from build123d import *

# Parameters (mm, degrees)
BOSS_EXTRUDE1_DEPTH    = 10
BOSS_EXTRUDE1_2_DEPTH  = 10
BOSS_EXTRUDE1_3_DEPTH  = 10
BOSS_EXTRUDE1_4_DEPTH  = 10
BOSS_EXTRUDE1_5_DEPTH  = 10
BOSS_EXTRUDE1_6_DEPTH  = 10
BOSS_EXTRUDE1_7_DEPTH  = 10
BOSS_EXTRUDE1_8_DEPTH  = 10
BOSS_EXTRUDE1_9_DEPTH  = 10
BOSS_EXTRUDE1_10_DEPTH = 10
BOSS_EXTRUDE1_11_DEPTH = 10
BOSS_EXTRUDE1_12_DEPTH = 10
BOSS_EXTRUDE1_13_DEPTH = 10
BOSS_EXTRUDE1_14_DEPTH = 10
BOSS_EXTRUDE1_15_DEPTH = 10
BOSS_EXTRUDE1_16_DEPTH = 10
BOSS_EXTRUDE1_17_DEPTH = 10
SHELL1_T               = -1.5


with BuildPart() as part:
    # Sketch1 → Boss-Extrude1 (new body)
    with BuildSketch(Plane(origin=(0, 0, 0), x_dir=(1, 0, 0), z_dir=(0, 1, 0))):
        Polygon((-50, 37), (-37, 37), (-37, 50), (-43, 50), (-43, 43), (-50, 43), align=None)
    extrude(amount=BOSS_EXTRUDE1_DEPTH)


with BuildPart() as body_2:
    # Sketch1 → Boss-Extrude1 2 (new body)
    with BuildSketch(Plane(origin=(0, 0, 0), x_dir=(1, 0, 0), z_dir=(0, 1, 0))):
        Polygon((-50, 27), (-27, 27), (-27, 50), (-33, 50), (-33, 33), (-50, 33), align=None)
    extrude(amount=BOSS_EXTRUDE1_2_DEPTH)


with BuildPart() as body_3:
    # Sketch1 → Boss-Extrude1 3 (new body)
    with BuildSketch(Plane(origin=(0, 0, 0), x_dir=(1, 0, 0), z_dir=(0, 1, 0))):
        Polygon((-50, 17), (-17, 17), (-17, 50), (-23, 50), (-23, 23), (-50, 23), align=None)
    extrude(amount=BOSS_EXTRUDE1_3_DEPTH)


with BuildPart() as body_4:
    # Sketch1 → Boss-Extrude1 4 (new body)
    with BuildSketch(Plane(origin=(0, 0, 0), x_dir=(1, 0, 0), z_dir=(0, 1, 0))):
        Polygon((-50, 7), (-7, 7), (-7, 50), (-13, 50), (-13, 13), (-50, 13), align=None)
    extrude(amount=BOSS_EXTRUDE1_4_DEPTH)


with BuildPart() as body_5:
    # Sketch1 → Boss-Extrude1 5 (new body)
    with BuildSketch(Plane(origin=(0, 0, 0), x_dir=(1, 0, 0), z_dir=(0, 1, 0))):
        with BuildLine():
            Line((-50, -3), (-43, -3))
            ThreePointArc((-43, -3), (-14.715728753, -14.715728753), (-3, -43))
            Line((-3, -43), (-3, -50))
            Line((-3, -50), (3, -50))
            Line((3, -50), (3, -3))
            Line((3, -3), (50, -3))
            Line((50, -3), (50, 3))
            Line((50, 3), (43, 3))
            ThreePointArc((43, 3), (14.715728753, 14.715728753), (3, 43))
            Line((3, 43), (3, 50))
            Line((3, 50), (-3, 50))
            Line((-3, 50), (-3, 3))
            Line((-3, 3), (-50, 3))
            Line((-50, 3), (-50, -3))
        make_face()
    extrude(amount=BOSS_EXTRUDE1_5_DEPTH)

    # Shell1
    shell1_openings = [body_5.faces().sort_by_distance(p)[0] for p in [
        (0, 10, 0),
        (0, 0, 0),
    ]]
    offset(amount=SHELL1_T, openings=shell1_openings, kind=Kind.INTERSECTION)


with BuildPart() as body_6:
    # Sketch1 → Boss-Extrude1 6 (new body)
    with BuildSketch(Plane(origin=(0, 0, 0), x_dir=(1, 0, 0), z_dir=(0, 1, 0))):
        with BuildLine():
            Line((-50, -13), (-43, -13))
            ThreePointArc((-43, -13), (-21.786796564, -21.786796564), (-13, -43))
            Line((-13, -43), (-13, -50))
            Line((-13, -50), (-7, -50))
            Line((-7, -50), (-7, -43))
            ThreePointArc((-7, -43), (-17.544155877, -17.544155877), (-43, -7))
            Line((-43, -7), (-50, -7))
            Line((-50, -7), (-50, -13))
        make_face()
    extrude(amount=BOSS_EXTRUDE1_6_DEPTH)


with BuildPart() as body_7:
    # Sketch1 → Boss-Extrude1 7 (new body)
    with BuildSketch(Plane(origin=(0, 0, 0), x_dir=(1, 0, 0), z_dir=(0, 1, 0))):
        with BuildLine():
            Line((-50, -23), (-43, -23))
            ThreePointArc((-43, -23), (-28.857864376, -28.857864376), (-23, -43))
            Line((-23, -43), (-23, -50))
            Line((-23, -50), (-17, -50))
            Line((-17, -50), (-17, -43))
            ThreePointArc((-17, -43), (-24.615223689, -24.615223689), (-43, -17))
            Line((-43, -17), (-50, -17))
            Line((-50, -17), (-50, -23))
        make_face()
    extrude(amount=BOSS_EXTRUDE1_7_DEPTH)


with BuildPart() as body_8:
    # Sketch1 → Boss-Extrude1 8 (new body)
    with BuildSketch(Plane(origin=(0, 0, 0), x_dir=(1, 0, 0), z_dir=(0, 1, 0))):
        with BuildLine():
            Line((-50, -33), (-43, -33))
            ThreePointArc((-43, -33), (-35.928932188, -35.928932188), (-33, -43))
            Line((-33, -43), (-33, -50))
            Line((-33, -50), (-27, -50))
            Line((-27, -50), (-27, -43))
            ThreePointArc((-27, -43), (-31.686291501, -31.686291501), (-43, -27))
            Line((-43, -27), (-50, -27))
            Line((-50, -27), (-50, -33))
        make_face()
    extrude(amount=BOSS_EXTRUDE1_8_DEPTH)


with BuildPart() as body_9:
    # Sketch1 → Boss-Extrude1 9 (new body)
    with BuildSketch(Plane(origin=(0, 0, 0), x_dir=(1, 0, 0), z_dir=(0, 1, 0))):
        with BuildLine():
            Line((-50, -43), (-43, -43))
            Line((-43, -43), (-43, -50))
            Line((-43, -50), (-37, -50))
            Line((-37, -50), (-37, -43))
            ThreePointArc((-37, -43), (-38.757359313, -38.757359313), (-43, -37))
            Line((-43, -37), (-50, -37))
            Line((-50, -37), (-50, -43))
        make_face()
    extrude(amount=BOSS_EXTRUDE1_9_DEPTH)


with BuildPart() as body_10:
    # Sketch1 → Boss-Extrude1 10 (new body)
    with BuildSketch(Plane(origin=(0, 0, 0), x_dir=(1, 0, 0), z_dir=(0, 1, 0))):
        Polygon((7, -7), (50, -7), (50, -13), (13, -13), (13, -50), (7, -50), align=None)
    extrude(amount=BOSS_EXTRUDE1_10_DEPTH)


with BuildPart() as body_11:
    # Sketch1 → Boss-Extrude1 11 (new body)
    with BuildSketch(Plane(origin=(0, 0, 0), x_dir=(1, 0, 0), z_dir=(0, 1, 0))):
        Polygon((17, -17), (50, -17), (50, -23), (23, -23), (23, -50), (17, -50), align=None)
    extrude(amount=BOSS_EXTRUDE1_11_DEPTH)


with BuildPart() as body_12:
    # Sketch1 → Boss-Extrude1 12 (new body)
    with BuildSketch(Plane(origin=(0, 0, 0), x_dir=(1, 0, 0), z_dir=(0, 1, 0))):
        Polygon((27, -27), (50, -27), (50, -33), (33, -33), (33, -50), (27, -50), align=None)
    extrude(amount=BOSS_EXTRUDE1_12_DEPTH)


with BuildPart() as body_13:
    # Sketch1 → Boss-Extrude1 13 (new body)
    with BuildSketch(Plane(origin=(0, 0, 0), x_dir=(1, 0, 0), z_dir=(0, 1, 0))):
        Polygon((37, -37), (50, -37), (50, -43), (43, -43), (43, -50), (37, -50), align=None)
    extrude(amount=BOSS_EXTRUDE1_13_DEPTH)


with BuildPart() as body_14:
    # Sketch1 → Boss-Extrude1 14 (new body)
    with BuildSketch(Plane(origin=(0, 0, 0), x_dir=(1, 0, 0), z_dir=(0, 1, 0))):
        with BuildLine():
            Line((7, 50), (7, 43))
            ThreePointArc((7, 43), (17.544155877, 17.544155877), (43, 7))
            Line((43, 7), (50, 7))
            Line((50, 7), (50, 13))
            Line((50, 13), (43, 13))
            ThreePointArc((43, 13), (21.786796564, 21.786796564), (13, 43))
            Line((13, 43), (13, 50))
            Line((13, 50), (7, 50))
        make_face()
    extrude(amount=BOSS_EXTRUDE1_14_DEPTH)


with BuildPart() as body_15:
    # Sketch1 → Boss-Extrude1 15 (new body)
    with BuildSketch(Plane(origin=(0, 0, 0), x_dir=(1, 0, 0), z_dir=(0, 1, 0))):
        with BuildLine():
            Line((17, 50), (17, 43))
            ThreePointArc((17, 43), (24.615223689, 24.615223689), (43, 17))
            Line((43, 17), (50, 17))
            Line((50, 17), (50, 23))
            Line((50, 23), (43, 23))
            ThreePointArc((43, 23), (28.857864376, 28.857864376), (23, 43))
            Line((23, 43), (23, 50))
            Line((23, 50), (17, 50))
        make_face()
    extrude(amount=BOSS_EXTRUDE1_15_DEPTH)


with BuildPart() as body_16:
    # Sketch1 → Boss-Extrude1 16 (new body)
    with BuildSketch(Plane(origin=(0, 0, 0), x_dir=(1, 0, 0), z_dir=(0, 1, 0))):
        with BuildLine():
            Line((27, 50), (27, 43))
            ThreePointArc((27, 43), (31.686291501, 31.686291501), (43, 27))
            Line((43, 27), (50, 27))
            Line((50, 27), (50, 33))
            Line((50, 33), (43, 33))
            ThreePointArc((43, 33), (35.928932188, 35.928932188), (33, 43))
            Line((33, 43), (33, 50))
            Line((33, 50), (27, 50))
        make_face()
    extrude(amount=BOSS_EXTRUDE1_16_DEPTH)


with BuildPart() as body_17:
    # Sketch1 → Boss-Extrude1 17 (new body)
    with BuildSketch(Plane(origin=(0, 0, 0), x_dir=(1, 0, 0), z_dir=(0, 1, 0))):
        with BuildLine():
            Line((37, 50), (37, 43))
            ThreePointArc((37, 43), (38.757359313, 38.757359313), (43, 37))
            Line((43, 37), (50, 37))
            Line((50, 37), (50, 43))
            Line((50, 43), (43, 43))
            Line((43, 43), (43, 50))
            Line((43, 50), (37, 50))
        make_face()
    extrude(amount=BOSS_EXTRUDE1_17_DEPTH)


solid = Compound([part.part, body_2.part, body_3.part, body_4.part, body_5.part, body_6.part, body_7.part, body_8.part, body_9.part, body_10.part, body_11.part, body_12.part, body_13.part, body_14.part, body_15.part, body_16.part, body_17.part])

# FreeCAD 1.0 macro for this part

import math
import FreeCAD as App
import Part
import Sketcher
from FreeCAD import Vector
Q = App.Units.Quantity


def faces_at(feature, points):
    """Names of the faces that lie closest to the given points."""
    faces = feature.Shape.Faces
    near = lambda p: min(range(len(faces)), key=lambda i: faces[i].distToShape(Part.Vertex(*p))[0])
    return sorted({f"Face{near(p) + 1}" for p in points})


def add_polygon(sketch, points):
    """Adds a closed chain of lines whose ends are joined by coincident constraints."""
    first, n = sketch.GeometryCount, len(points)
    for a, b in zip(points, points[1:] + points[:1]):
        sketch.addGeometry(Part.LineSegment(App.Vector(*a, 0), App.Vector(*b, 0)), False)
    for i in range(n):
        sketch.addConstraint(Sketcher.Constraint("Coincident", first + i, 2, first + (i + 1) % n, 1))

doc = App.newDocument("Part")
body = doc.addObject("PartDesign::Body", "Body")

# Sketch on XZ plane
sketch1 = doc.addObject("Sketcher::SketchObject", "Sketch")
body.addObject(sketch1)
sketch1.AttachmentSupport = (doc.XZ_Plane, [""])
sketch1.MapMode = "FlatFace"
add_polygon(sketch1, [(-50, -37), (-37, -37), (-37, -50), (-43, -50), (-43, -43), (-50, -43)])  # lines 0-5
sketch1.addConstraint([
    Sketcher.Constraint("Horizontal", 0),
    Sketcher.Constraint("Vertical", 1),
    Sketcher.Constraint("Horizontal", 2),
    Sketcher.Constraint("Vertical", 3),
    Sketcher.Constraint("Horizontal", 4),
    Sketcher.Constraint("Vertical", 5),
    Sketcher.Constraint("Equal", 0, 1),
    Sketcher.Constraint("Equal", 4, 3),
    Sketcher.Constraint("DistanceX", 0, 1, 0, 2, Q("13 mm")),
    Sketcher.Constraint("DistanceX", 2, 2, 2, 1, Q("6 mm")),
    Sketcher.Constraint("DistanceX", 0, 2, -1, 1, Q("37 mm")),
    Sketcher.Constraint("DistanceY", 0, 2, -1, 1, Q("37 mm")),
])
pad1 = doc.addObject("PartDesign::Pad", "Pad")
body.addObject(pad1)
pad1.Profile = sketch1
pad1.Length = 10
pad1.Reversed = True
body2 = doc.addObject("PartDesign::Body", "Body001")

# Sketch on XZ plane
sketch2 = doc.addObject("Sketcher::SketchObject", "Sketch001")
body2.addObject(sketch2)
sketch2.AttachmentSupport = (doc.getObject("XZ_Plane001"), [""])
sketch2.MapMode = "FlatFace"
add_polygon(sketch2, [(-50, -27), (-27, -27), (-27, -50), (-33, -50), (-33, -33), (-50, -33)])  # lines 0-5
sketch2.addConstraint([
    Sketcher.Constraint("Horizontal", 0),
    Sketcher.Constraint("Vertical", 1),
    Sketcher.Constraint("Horizontal", 2),
    Sketcher.Constraint("Vertical", 3),
    Sketcher.Constraint("Horizontal", 4),
    Sketcher.Constraint("Vertical", 5),
    Sketcher.Constraint("Equal", 0, 1),
    Sketcher.Constraint("Equal", 4, 3),
    Sketcher.Constraint("DistanceX", 0, 1, 0, 2, Q("23 mm")),
    Sketcher.Constraint("DistanceX", 2, 2, 2, 1, Q("6 mm")),
    Sketcher.Constraint("DistanceX", 0, 2, -1, 1, Q("27 mm")),
    Sketcher.Constraint("DistanceY", 0, 2, -1, 1, Q("27 mm")),
])
pad2 = doc.addObject("PartDesign::Pad", "Pad001")
body2.addObject(pad2)
pad2.Profile = sketch2
pad2.Length = 10
pad2.Reversed = True
body3 = doc.addObject("PartDesign::Body", "Body002")

# Sketch on XZ plane
sketch3 = doc.addObject("Sketcher::SketchObject", "Sketch002")
body3.addObject(sketch3)
sketch3.AttachmentSupport = (doc.getObject("XZ_Plane002"), [""])
sketch3.MapMode = "FlatFace"
add_polygon(sketch3, [(-50, -17), (-17, -17), (-17, -50), (-23, -50), (-23, -23), (-50, -23)])  # lines 0-5
sketch3.addConstraint([
    Sketcher.Constraint("Horizontal", 0),
    Sketcher.Constraint("Vertical", 1),
    Sketcher.Constraint("Horizontal", 2),
    Sketcher.Constraint("Vertical", 3),
    Sketcher.Constraint("Horizontal", 4),
    Sketcher.Constraint("Vertical", 5),
    Sketcher.Constraint("Equal", 0, 1),
    Sketcher.Constraint("Equal", 4, 3),
    Sketcher.Constraint("DistanceX", 0, 1, 0, 2, Q("33 mm")),
    Sketcher.Constraint("DistanceX", 2, 2, 2, 1, Q("6 mm")),
    Sketcher.Constraint("DistanceX", 0, 2, -1, 1, Q("17 mm")),
    Sketcher.Constraint("DistanceY", 0, 2, -1, 1, Q("17 mm")),
])
pad3 = doc.addObject("PartDesign::Pad", "Pad002")
body3.addObject(pad3)
pad3.Profile = sketch3
pad3.Length = 10
pad3.Reversed = True
body4 = doc.addObject("PartDesign::Body", "Body003")

# Sketch on XZ plane
sketch4 = doc.addObject("Sketcher::SketchObject", "Sketch003")
body4.addObject(sketch4)
sketch4.AttachmentSupport = (doc.getObject("XZ_Plane003"), [""])
sketch4.MapMode = "FlatFace"
add_polygon(sketch4, [(-50, -7), (-7, -7), (-7, -50), (-13, -50), (-13, -13), (-50, -13)])  # lines 0-5
sketch4.addConstraint([
    Sketcher.Constraint("Horizontal", 0),
    Sketcher.Constraint("Vertical", 1),
    Sketcher.Constraint("Horizontal", 2),
    Sketcher.Constraint("Vertical", 3),
    Sketcher.Constraint("Horizontal", 4),
    Sketcher.Constraint("Vertical", 5),
    Sketcher.Constraint("Equal", 0, 1),
    Sketcher.Constraint("Equal", 4, 3),
    Sketcher.Constraint("DistanceX", 0, 1, 0, 2, Q("43 mm")),
    Sketcher.Constraint("DistanceX", 2, 2, 2, 1, Q("6 mm")),
    Sketcher.Constraint("DistanceX", 0, 2, -1, 1, Q("7 mm")),
    Sketcher.Constraint("DistanceY", 0, 2, -1, 1, Q("7 mm")),
])
pad4 = doc.addObject("PartDesign::Pad", "Pad003")
body4.addObject(pad4)
pad4.Profile = sketch4
pad4.Length = 10
pad4.Reversed = True
body5 = doc.addObject("PartDesign::Body", "Body004")

# Sketch on XZ plane
sketch5 = doc.addObject("Sketcher::SketchObject", "Sketch004")
body5.addObject(sketch5)
sketch5.AttachmentSupport = (doc.getObject("XZ_Plane004"), [""])
sketch5.MapMode = "FlatFace"
sketch5.addGeometry([
    Part.LineSegment(Vector(-50, 3, 0), Vector(-43, 3, 0)),  # 0
    Part.ArcOfCircle(Part.Circle(Vector(-43, 43, 0), Vector(0, 0, 1), 40), math.radians(-90), math.radians(0)),  # 1
    Part.LineSegment(Vector(-3, 43, 0), Vector(-3, 50, 0)),  # 2
    Part.LineSegment(Vector(-3, 50, 0), Vector(3, 50, 0)),  # 3
    Part.LineSegment(Vector(3, 50, 0), Vector(3, 3, 0)),  # 4
    Part.LineSegment(Vector(3, 3, 0), Vector(50, 3, 0)),  # 5
    Part.LineSegment(Vector(50, 3, 0), Vector(50, -3, 0)),  # 6
    Part.LineSegment(Vector(50, -3, 0), Vector(43, -3, 0)),  # 7
    Part.ArcOfCircle(Part.Circle(Vector(43, -43, 0), Vector(0, 0, 1), 40), math.radians(90), math.radians(180)),  # 8
    Part.LineSegment(Vector(3, -43, 0), Vector(3, -50, 0)),  # 9
    Part.LineSegment(Vector(3, -50, 0), Vector(-3, -50, 0)),  # 10
    Part.LineSegment(Vector(-3, -50, 0), Vector(-3, -3, 0)),  # 11
    Part.LineSegment(Vector(-3, -3, 0), Vector(-50, -3, 0)),  # 12
    Part.LineSegment(Vector(-50, -3, 0), Vector(-50, 3, 0)),  # 13
], False)
sketch5.addConstraint([
    Sketcher.Constraint("Tangent", 0, 2, 1, 1),
    Sketcher.Constraint("Tangent", 1, 2, 2, 1),
    Sketcher.Constraint("Coincident", 2, 2, 3, 1),
    Sketcher.Constraint("Coincident", 3, 2, 4, 1),
    Sketcher.Constraint("Coincident", 4, 2, 5, 1),
    Sketcher.Constraint("Coincident", 5, 2, 6, 1),
    Sketcher.Constraint("Coincident", 6, 2, 7, 1),
    Sketcher.Constraint("Tangent", 7, 2, 8, 1),
    Sketcher.Constraint("Tangent", 8, 2, 9, 1),
    Sketcher.Constraint("Coincident", 9, 2, 10, 1),
    Sketcher.Constraint("Coincident", 10, 2, 11, 1),
    Sketcher.Constraint("Coincident", 11, 2, 12, 1),
    Sketcher.Constraint("Coincident", 12, 2, 13, 1),
    Sketcher.Constraint("Coincident", 13, 2, 0, 1),
    Sketcher.Constraint("Horizontal", 0),
    Sketcher.Constraint("Vertical", 2),
    Sketcher.Constraint("Horizontal", 3),
    Sketcher.Constraint("Vertical", 4),
    Sketcher.Constraint("Horizontal", 5),
    Sketcher.Constraint("Vertical", 6),
    Sketcher.Constraint("Horizontal", 7),
    Sketcher.Constraint("Vertical", 9),
    Sketcher.Constraint("Horizontal", 10),
    Sketcher.Constraint("Vertical", 11),
    Sketcher.Constraint("Horizontal", 12),
    Sketcher.Constraint("Vertical", 13),
    Sketcher.Constraint("Equal", 1, 8),
    Sketcher.Constraint("Symmetric", 1, 3, 8, 3, -1, 1),
    Sketcher.Constraint("Symmetric", 3, 2, 10, 2, -1, 1),
    Sketcher.Constraint("Symmetric", 5, 2, 12, 2, -1, 1),
    Sketcher.Constraint("Horizontal", 0, 2, 4, 2),
    Sketcher.Constraint("Vertical", 4, 2, 8, 2),
    Sketcher.Constraint("Equal", 7, 2),
    Sketcher.Constraint("Equal", 10, 6),
    Sketcher.Constraint("Radius", 1, Q("40 mm")),
    Sketcher.Constraint("DistanceX", 0, 1, 0, 2, Q("7 mm")),
    Sketcher.Constraint("DistanceX", 3, 1, 3, 2, Q("6 mm")),
])
pad5 = doc.addObject("PartDesign::Pad", "Pad004")
body5.addObject(pad5)
pad5.Profile = sketch5
pad5.Length = 10
pad5.Reversed = True
doc.recompute()

thickness = doc.addObject("PartDesign::Thickness", "Thickness")
body5.addObject(thickness)
thickness.Base = (pad5, faces_at(pad5, [(0, 10, 0), (0, 0, 0)]))
thickness.Value = 1.5
thickness.Reversed = True
thickness.Join = "Intersection"
body6 = doc.addObject("PartDesign::Body", "Body005")

# Sketch on XZ plane
sketch6 = doc.addObject("Sketcher::SketchObject", "Sketch005")
body6.addObject(sketch6)
sketch6.AttachmentSupport = (doc.getObject("XZ_Plane005"), [""])
sketch6.MapMode = "FlatFace"
sketch6.addGeometry([
    Part.LineSegment(Vector(-50, 13, 0), Vector(-43, 13, 0)),  # 0
    Part.ArcOfCircle(Part.Circle(Vector(-43, 43, 0), Vector(0, 0, 1), 30), math.radians(-90), math.radians(0)),  # 1
    Part.LineSegment(Vector(-13, 43, 0), Vector(-13, 50, 0)),  # 2
    Part.LineSegment(Vector(-13, 50, 0), Vector(-7, 50, 0)),  # 3
    Part.LineSegment(Vector(-7, 50, 0), Vector(-7, 43, 0)),  # 4
    Part.ArcOfCircle(Part.Circle(Vector(-43, 43, 0), Vector(0, 0, 1), 36), math.radians(-90), math.radians(0)),  # 5
    Part.LineSegment(Vector(-43, 7, 0), Vector(-50, 7, 0)),  # 6
    Part.LineSegment(Vector(-50, 7, 0), Vector(-50, 13, 0)),  # 7
], False)
sketch6.addConstraint([
    Sketcher.Constraint("Tangent", 0, 2, 1, 1),
    Sketcher.Constraint("Tangent", 1, 2, 2, 1),
    Sketcher.Constraint("Coincident", 2, 2, 3, 1),
    Sketcher.Constraint("Coincident", 3, 2, 4, 1),
    Sketcher.Constraint("Tangent", 4, 2, 5, 2),
    Sketcher.Constraint("Tangent", 5, 1, 6, 1),
    Sketcher.Constraint("Coincident", 6, 2, 7, 1),
    Sketcher.Constraint("Coincident", 7, 2, 0, 1),
    Sketcher.Constraint("Horizontal", 0),
    Sketcher.Constraint("Vertical", 2),
    Sketcher.Constraint("Horizontal", 3),
    Sketcher.Constraint("Vertical", 4),
    Sketcher.Constraint("Horizontal", 6),
    Sketcher.Constraint("Vertical", 7),
    Sketcher.Constraint("Coincident", 5, 3, 1, 3),
    Sketcher.Constraint("Equal", 6, 2),
    Sketcher.Constraint("Radius", 1, Q("30 mm")),
    Sketcher.Constraint("Radius", 5, Q("36 mm")),
    Sketcher.Constraint("DistanceX", 0, 1, 0, 2, Q("7 mm")),
    Sketcher.Constraint("DistanceX", 1, 3, -1, 1, Q("43 mm")),
    Sketcher.Constraint("DistanceY", -1, 1, 1, 3, Q("43 mm")),
])
pad6 = doc.addObject("PartDesign::Pad", "Pad005")
body6.addObject(pad6)
pad6.Profile = sketch6
pad6.Length = 10
pad6.Reversed = True
body7 = doc.addObject("PartDesign::Body", "Body006")

# Sketch on XZ plane
sketch7 = doc.addObject("Sketcher::SketchObject", "Sketch006")
body7.addObject(sketch7)
sketch7.AttachmentSupport = (doc.getObject("XZ_Plane006"), [""])
sketch7.MapMode = "FlatFace"
sketch7.addGeometry([
    Part.LineSegment(Vector(-50, 23, 0), Vector(-43, 23, 0)),  # 0
    Part.ArcOfCircle(Part.Circle(Vector(-43, 43, 0), Vector(0, 0, 1), 20), math.radians(-90), math.radians(0)),  # 1
    Part.LineSegment(Vector(-23, 43, 0), Vector(-23, 50, 0)),  # 2
    Part.LineSegment(Vector(-23, 50, 0), Vector(-17, 50, 0)),  # 3
    Part.LineSegment(Vector(-17, 50, 0), Vector(-17, 43, 0)),  # 4
    Part.ArcOfCircle(Part.Circle(Vector(-43, 43, 0), Vector(0, 0, 1), 26), math.radians(-90), math.radians(0)),  # 5
    Part.LineSegment(Vector(-43, 17, 0), Vector(-50, 17, 0)),  # 6
    Part.LineSegment(Vector(-50, 17, 0), Vector(-50, 23, 0)),  # 7
], False)
sketch7.addConstraint([
    Sketcher.Constraint("Tangent", 0, 2, 1, 1),
    Sketcher.Constraint("Tangent", 1, 2, 2, 1),
    Sketcher.Constraint("Coincident", 2, 2, 3, 1),
    Sketcher.Constraint("Coincident", 3, 2, 4, 1),
    Sketcher.Constraint("Tangent", 4, 2, 5, 2),
    Sketcher.Constraint("Tangent", 5, 1, 6, 1),
    Sketcher.Constraint("Coincident", 6, 2, 7, 1),
    Sketcher.Constraint("Coincident", 7, 2, 0, 1),
    Sketcher.Constraint("Horizontal", 0),
    Sketcher.Constraint("Vertical", 2),
    Sketcher.Constraint("Horizontal", 3),
    Sketcher.Constraint("Vertical", 4),
    Sketcher.Constraint("Horizontal", 6),
    Sketcher.Constraint("Vertical", 7),
    Sketcher.Constraint("Coincident", 5, 3, 1, 3),
    Sketcher.Constraint("Equal", 6, 2),
    Sketcher.Constraint("Radius", 1, Q("20 mm")),
    Sketcher.Constraint("Radius", 5, Q("26 mm")),
    Sketcher.Constraint("DistanceX", 0, 1, 0, 2, Q("7 mm")),
    Sketcher.Constraint("DistanceX", 1, 3, -1, 1, Q("43 mm")),
    Sketcher.Constraint("DistanceY", -1, 1, 1, 3, Q("43 mm")),
])
pad7 = doc.addObject("PartDesign::Pad", "Pad006")
body7.addObject(pad7)
pad7.Profile = sketch7
pad7.Length = 10
pad7.Reversed = True
body8 = doc.addObject("PartDesign::Body", "Body007")

# Sketch on XZ plane
sketch8 = doc.addObject("Sketcher::SketchObject", "Sketch007")
body8.addObject(sketch8)
sketch8.AttachmentSupport = (doc.getObject("XZ_Plane007"), [""])
sketch8.MapMode = "FlatFace"
sketch8.addGeometry([
    Part.LineSegment(Vector(-50, 33, 0), Vector(-43, 33, 0)),  # 0
    Part.ArcOfCircle(Part.Circle(Vector(-43, 43, 0), Vector(0, 0, 1), 10), math.radians(-90), math.radians(0)),  # 1
    Part.LineSegment(Vector(-33, 43, 0), Vector(-33, 50, 0)),  # 2
    Part.LineSegment(Vector(-33, 50, 0), Vector(-27, 50, 0)),  # 3
    Part.LineSegment(Vector(-27, 50, 0), Vector(-27, 43, 0)),  # 4
    Part.ArcOfCircle(Part.Circle(Vector(-43, 43, 0), Vector(0, 0, 1), 16), math.radians(-90), math.radians(0)),  # 5
    Part.LineSegment(Vector(-43, 27, 0), Vector(-50, 27, 0)),  # 6
    Part.LineSegment(Vector(-50, 27, 0), Vector(-50, 33, 0)),  # 7
], False)
sketch8.addConstraint([
    Sketcher.Constraint("Tangent", 0, 2, 1, 1),
    Sketcher.Constraint("Tangent", 1, 2, 2, 1),
    Sketcher.Constraint("Coincident", 2, 2, 3, 1),
    Sketcher.Constraint("Coincident", 3, 2, 4, 1),
    Sketcher.Constraint("Tangent", 4, 2, 5, 2),
    Sketcher.Constraint("Tangent", 5, 1, 6, 1),
    Sketcher.Constraint("Coincident", 6, 2, 7, 1),
    Sketcher.Constraint("Coincident", 7, 2, 0, 1),
    Sketcher.Constraint("Horizontal", 0),
    Sketcher.Constraint("Vertical", 2),
    Sketcher.Constraint("Horizontal", 3),
    Sketcher.Constraint("Vertical", 4),
    Sketcher.Constraint("Horizontal", 6),
    Sketcher.Constraint("Vertical", 7),
    Sketcher.Constraint("Coincident", 5, 3, 1, 3),
    Sketcher.Constraint("Equal", 6, 2),
    Sketcher.Constraint("Radius", 1, Q("10 mm")),
    Sketcher.Constraint("Radius", 5, Q("16 mm")),
    Sketcher.Constraint("DistanceX", 0, 1, 0, 2, Q("7 mm")),
    Sketcher.Constraint("DistanceX", 1, 3, -1, 1, Q("43 mm")),
    Sketcher.Constraint("DistanceY", -1, 1, 1, 3, Q("43 mm")),
])
pad8 = doc.addObject("PartDesign::Pad", "Pad007")
body8.addObject(pad8)
pad8.Profile = sketch8
pad8.Length = 10
pad8.Reversed = True
body9 = doc.addObject("PartDesign::Body", "Body008")

# Sketch on XZ plane
sketch9 = doc.addObject("Sketcher::SketchObject", "Sketch008")
body9.addObject(sketch9)
sketch9.AttachmentSupport = (doc.getObject("XZ_Plane008"), [""])
sketch9.MapMode = "FlatFace"
sketch9.addGeometry([
    Part.LineSegment(Vector(-50, 43, 0), Vector(-43, 43, 0)),  # 0
    Part.LineSegment(Vector(-43, 43, 0), Vector(-43, 50, 0)),  # 1
    Part.LineSegment(Vector(-43, 50, 0), Vector(-37, 50, 0)),  # 2
    Part.LineSegment(Vector(-37, 50, 0), Vector(-37, 43, 0)),  # 3
    Part.ArcOfCircle(Part.Circle(Vector(-43, 43, 0), Vector(0, 0, 1), 6), math.radians(-90), math.radians(0)),  # 4
    Part.LineSegment(Vector(-43, 37, 0), Vector(-50, 37, 0)),  # 5
    Part.LineSegment(Vector(-50, 37, 0), Vector(-50, 43, 0)),  # 6
], False)
sketch9.addConstraint([
    Sketcher.Constraint("Coincident", 0, 2, 1, 1),
    Sketcher.Constraint("Coincident", 1, 2, 2, 1),
    Sketcher.Constraint("Coincident", 2, 2, 3, 1),
    Sketcher.Constraint("Tangent", 3, 2, 4, 2),
    Sketcher.Constraint("Tangent", 4, 1, 5, 1),
    Sketcher.Constraint("Coincident", 5, 2, 6, 1),
    Sketcher.Constraint("Coincident", 6, 2, 0, 1),
    Sketcher.Constraint("Horizontal", 0),
    Sketcher.Constraint("Vertical", 1),
    Sketcher.Constraint("Horizontal", 2),
    Sketcher.Constraint("Vertical", 3),
    Sketcher.Constraint("Horizontal", 5),
    Sketcher.Constraint("Vertical", 6),
    Sketcher.Constraint("Coincident", 0, 2, 4, 3),
    Sketcher.Constraint("Equal", 5, 1),
    Sketcher.Constraint("Radius", 4, Q("6 mm")),
    Sketcher.Constraint("DistanceX", 0, 1, 0, 2, Q("7 mm")),
    Sketcher.Constraint("DistanceX", 4, 3, -1, 1, Q("43 mm")),
    Sketcher.Constraint("DistanceY", -1, 1, 4, 3, Q("43 mm")),
])
pad9 = doc.addObject("PartDesign::Pad", "Pad008")
body9.addObject(pad9)
pad9.Profile = sketch9
pad9.Length = 10
pad9.Reversed = True
body10 = doc.addObject("PartDesign::Body", "Body009")

# Sketch on XZ plane
sketch10 = doc.addObject("Sketcher::SketchObject", "Sketch009")
body10.addObject(sketch10)
sketch10.AttachmentSupport = (doc.getObject("XZ_Plane009"), [""])
sketch10.MapMode = "FlatFace"
add_polygon(sketch10, [(50, 7), (7, 7), (7, 50), (13, 50), (13, 13), (50, 13)])  # lines 0-5
sketch10.addConstraint([
    Sketcher.Constraint("Horizontal", 0),
    Sketcher.Constraint("Vertical", 1),
    Sketcher.Constraint("Horizontal", 2),
    Sketcher.Constraint("Vertical", 3),
    Sketcher.Constraint("Horizontal", 4),
    Sketcher.Constraint("Vertical", 5),
    Sketcher.Constraint("Equal", 0, 1),
    Sketcher.Constraint("Equal", 4, 3),
    Sketcher.Constraint("DistanceX", 0, 2, 0, 1, Q("43 mm")),
    Sketcher.Constraint("DistanceX", 2, 1, 2, 2, Q("6 mm")),
    Sketcher.Constraint("DistanceX", -1, 1, 0, 2, Q("7 mm")),
    Sketcher.Constraint("DistanceY", -1, 1, 0, 2, Q("7 mm")),
])
pad10 = doc.addObject("PartDesign::Pad", "Pad009")
body10.addObject(pad10)
pad10.Profile = sketch10
pad10.Length = 10
pad10.Reversed = True
body11 = doc.addObject("PartDesign::Body", "Body010")

# Sketch on XZ plane
sketch11 = doc.addObject("Sketcher::SketchObject", "Sketch010")
body11.addObject(sketch11)
sketch11.AttachmentSupport = (doc.getObject("XZ_Plane010"), [""])
sketch11.MapMode = "FlatFace"
add_polygon(sketch11, [(50, 17), (17, 17), (17, 50), (23, 50), (23, 23), (50, 23)])  # lines 0-5
sketch11.addConstraint([
    Sketcher.Constraint("Horizontal", 0),
    Sketcher.Constraint("Vertical", 1),
    Sketcher.Constraint("Horizontal", 2),
    Sketcher.Constraint("Vertical", 3),
    Sketcher.Constraint("Horizontal", 4),
    Sketcher.Constraint("Vertical", 5),
    Sketcher.Constraint("Equal", 0, 1),
    Sketcher.Constraint("Equal", 4, 3),
    Sketcher.Constraint("DistanceX", 0, 2, 0, 1, Q("33 mm")),
    Sketcher.Constraint("DistanceX", 2, 1, 2, 2, Q("6 mm")),
    Sketcher.Constraint("DistanceX", -1, 1, 0, 2, Q("17 mm")),
    Sketcher.Constraint("DistanceY", -1, 1, 0, 2, Q("17 mm")),
])
pad11 = doc.addObject("PartDesign::Pad", "Pad010")
body11.addObject(pad11)
pad11.Profile = sketch11
pad11.Length = 10
pad11.Reversed = True
body12 = doc.addObject("PartDesign::Body", "Body011")

# Sketch on XZ plane
sketch12 = doc.addObject("Sketcher::SketchObject", "Sketch011")
body12.addObject(sketch12)
sketch12.AttachmentSupport = (doc.getObject("XZ_Plane011"), [""])
sketch12.MapMode = "FlatFace"
add_polygon(sketch12, [(50, 27), (27, 27), (27, 50), (33, 50), (33, 33), (50, 33)])  # lines 0-5
sketch12.addConstraint([
    Sketcher.Constraint("Horizontal", 0),
    Sketcher.Constraint("Vertical", 1),
    Sketcher.Constraint("Horizontal", 2),
    Sketcher.Constraint("Vertical", 3),
    Sketcher.Constraint("Horizontal", 4),
    Sketcher.Constraint("Vertical", 5),
    Sketcher.Constraint("Equal", 0, 1),
    Sketcher.Constraint("Equal", 4, 3),
    Sketcher.Constraint("DistanceX", 0, 2, 0, 1, Q("23 mm")),
    Sketcher.Constraint("DistanceX", 2, 1, 2, 2, Q("6 mm")),
    Sketcher.Constraint("DistanceX", -1, 1, 0, 2, Q("27 mm")),
    Sketcher.Constraint("DistanceY", -1, 1, 0, 2, Q("27 mm")),
])
pad12 = doc.addObject("PartDesign::Pad", "Pad011")
body12.addObject(pad12)
pad12.Profile = sketch12
pad12.Length = 10
pad12.Reversed = True
body13 = doc.addObject("PartDesign::Body", "Body012")

# Sketch on XZ plane
sketch13 = doc.addObject("Sketcher::SketchObject", "Sketch012")
body13.addObject(sketch13)
sketch13.AttachmentSupport = (doc.getObject("XZ_Plane012"), [""])
sketch13.MapMode = "FlatFace"
add_polygon(sketch13, [(50, 37), (37, 37), (37, 50), (43, 50), (43, 43), (50, 43)])  # lines 0-5
sketch13.addConstraint([
    Sketcher.Constraint("Horizontal", 0),
    Sketcher.Constraint("Vertical", 1),
    Sketcher.Constraint("Horizontal", 2),
    Sketcher.Constraint("Vertical", 3),
    Sketcher.Constraint("Horizontal", 4),
    Sketcher.Constraint("Vertical", 5),
    Sketcher.Constraint("Equal", 0, 1),
    Sketcher.Constraint("Equal", 4, 3),
    Sketcher.Constraint("DistanceX", 0, 2, 0, 1, Q("13 mm")),
    Sketcher.Constraint("DistanceX", 2, 1, 2, 2, Q("6 mm")),
    Sketcher.Constraint("DistanceX", -1, 1, 0, 2, Q("37 mm")),
    Sketcher.Constraint("DistanceY", -1, 1, 0, 2, Q("37 mm")),
])
pad13 = doc.addObject("PartDesign::Pad", "Pad012")
body13.addObject(pad13)
pad13.Profile = sketch13
pad13.Length = 10
pad13.Reversed = True
body14 = doc.addObject("PartDesign::Body", "Body013")

# Sketch on XZ plane
sketch14 = doc.addObject("Sketcher::SketchObject", "Sketch013")
body14.addObject(sketch14)
sketch14.AttachmentSupport = (doc.getObject("XZ_Plane013"), [""])
sketch14.MapMode = "FlatFace"
sketch14.addGeometry([
    Part.LineSegment(Vector(7, -50, 0), Vector(7, -43, 0)),  # 0
    Part.ArcOfCircle(Part.Circle(Vector(43, -43, 0), Vector(0, 0, 1), 36), math.radians(90), math.radians(180)),  # 1
    Part.LineSegment(Vector(43, -7, 0), Vector(50, -7, 0)),  # 2
    Part.LineSegment(Vector(50, -7, 0), Vector(50, -13, 0)),  # 3
    Part.LineSegment(Vector(50, -13, 0), Vector(43, -13, 0)),  # 4
    Part.ArcOfCircle(Part.Circle(Vector(43, -43, 0), Vector(0, 0, 1), 30), math.radians(90), math.radians(180)),  # 5
    Part.LineSegment(Vector(13, -43, 0), Vector(13, -50, 0)),  # 6
    Part.LineSegment(Vector(13, -50, 0), Vector(7, -50, 0)),  # 7
], False)
sketch14.addConstraint([
    Sketcher.Constraint("Tangent", 0, 2, 1, 2),
    Sketcher.Constraint("Tangent", 1, 1, 2, 1),
    Sketcher.Constraint("Coincident", 2, 2, 3, 1),
    Sketcher.Constraint("Coincident", 3, 2, 4, 1),
    Sketcher.Constraint("Tangent", 4, 2, 5, 1),
    Sketcher.Constraint("Tangent", 5, 2, 6, 1),
    Sketcher.Constraint("Coincident", 6, 2, 7, 1),
    Sketcher.Constraint("Coincident", 7, 2, 0, 1),
    Sketcher.Constraint("Vertical", 0),
    Sketcher.Constraint("Horizontal", 2),
    Sketcher.Constraint("Vertical", 3),
    Sketcher.Constraint("Horizontal", 4),
    Sketcher.Constraint("Vertical", 6),
    Sketcher.Constraint("Horizontal", 7),
    Sketcher.Constraint("Coincident", 5, 3, 1, 3),
    Sketcher.Constraint("Equal", 4, 0),
    Sketcher.Constraint("Radius", 1, Q("36 mm")),
    Sketcher.Constraint("Radius", 5, Q("30 mm")),
    Sketcher.Constraint("DistanceX", 2, 1, 2, 2, Q("7 mm")),
    Sketcher.Constraint("DistanceX", -1, 1, 1, 3, Q("43 mm")),
    Sketcher.Constraint("DistanceY", 1, 3, -1, 1, Q("43 mm")),
])
pad14 = doc.addObject("PartDesign::Pad", "Pad013")
body14.addObject(pad14)
pad14.Profile = sketch14
pad14.Length = 10
pad14.Reversed = True
body15 = doc.addObject("PartDesign::Body", "Body014")

# Sketch on XZ plane
sketch15 = doc.addObject("Sketcher::SketchObject", "Sketch014")
body15.addObject(sketch15)
sketch15.AttachmentSupport = (doc.getObject("XZ_Plane014"), [""])
sketch15.MapMode = "FlatFace"
sketch15.addGeometry([
    Part.LineSegment(Vector(17, -50, 0), Vector(17, -43, 0)),  # 0
    Part.ArcOfCircle(Part.Circle(Vector(43, -43, 0), Vector(0, 0, 1), 26), math.radians(90), math.radians(180)),  # 1
    Part.LineSegment(Vector(43, -17, 0), Vector(50, -17, 0)),  # 2
    Part.LineSegment(Vector(50, -17, 0), Vector(50, -23, 0)),  # 3
    Part.LineSegment(Vector(50, -23, 0), Vector(43, -23, 0)),  # 4
    Part.ArcOfCircle(Part.Circle(Vector(43, -43, 0), Vector(0, 0, 1), 20), math.radians(90), math.radians(180)),  # 5
    Part.LineSegment(Vector(23, -43, 0), Vector(23, -50, 0)),  # 6
    Part.LineSegment(Vector(23, -50, 0), Vector(17, -50, 0)),  # 7
], False)
sketch15.addConstraint([
    Sketcher.Constraint("Tangent", 0, 2, 1, 2),
    Sketcher.Constraint("Tangent", 1, 1, 2, 1),
    Sketcher.Constraint("Coincident", 2, 2, 3, 1),
    Sketcher.Constraint("Coincident", 3, 2, 4, 1),
    Sketcher.Constraint("Tangent", 4, 2, 5, 1),
    Sketcher.Constraint("Tangent", 5, 2, 6, 1),
    Sketcher.Constraint("Coincident", 6, 2, 7, 1),
    Sketcher.Constraint("Coincident", 7, 2, 0, 1),
    Sketcher.Constraint("Vertical", 0),
    Sketcher.Constraint("Horizontal", 2),
    Sketcher.Constraint("Vertical", 3),
    Sketcher.Constraint("Horizontal", 4),
    Sketcher.Constraint("Vertical", 6),
    Sketcher.Constraint("Horizontal", 7),
    Sketcher.Constraint("Coincident", 5, 3, 1, 3),
    Sketcher.Constraint("Equal", 4, 0),
    Sketcher.Constraint("Radius", 1, Q("26 mm")),
    Sketcher.Constraint("Radius", 5, Q("20 mm")),
    Sketcher.Constraint("DistanceX", 2, 1, 2, 2, Q("7 mm")),
    Sketcher.Constraint("DistanceX", -1, 1, 1, 3, Q("43 mm")),
    Sketcher.Constraint("DistanceY", 1, 3, -1, 1, Q("43 mm")),
])
pad15 = doc.addObject("PartDesign::Pad", "Pad014")
body15.addObject(pad15)
pad15.Profile = sketch15
pad15.Length = 10
pad15.Reversed = True
body16 = doc.addObject("PartDesign::Body", "Body015")

# Sketch on XZ plane
sketch16 = doc.addObject("Sketcher::SketchObject", "Sketch015")
body16.addObject(sketch16)
sketch16.AttachmentSupport = (doc.getObject("XZ_Plane015"), [""])
sketch16.MapMode = "FlatFace"
sketch16.addGeometry([
    Part.LineSegment(Vector(27, -50, 0), Vector(27, -43, 0)),  # 0
    Part.ArcOfCircle(Part.Circle(Vector(43, -43, 0), Vector(0, 0, 1), 16), math.radians(90), math.radians(180)),  # 1
    Part.LineSegment(Vector(43, -27, 0), Vector(50, -27, 0)),  # 2
    Part.LineSegment(Vector(50, -27, 0), Vector(50, -33, 0)),  # 3
    Part.LineSegment(Vector(50, -33, 0), Vector(43, -33, 0)),  # 4
    Part.ArcOfCircle(Part.Circle(Vector(43, -43, 0), Vector(0, 0, 1), 10), math.radians(90), math.radians(180)),  # 5
    Part.LineSegment(Vector(33, -43, 0), Vector(33, -50, 0)),  # 6
    Part.LineSegment(Vector(33, -50, 0), Vector(27, -50, 0)),  # 7
], False)
sketch16.addConstraint([
    Sketcher.Constraint("Tangent", 0, 2, 1, 2),
    Sketcher.Constraint("Tangent", 1, 1, 2, 1),
    Sketcher.Constraint("Coincident", 2, 2, 3, 1),
    Sketcher.Constraint("Coincident", 3, 2, 4, 1),
    Sketcher.Constraint("Tangent", 4, 2, 5, 1),
    Sketcher.Constraint("Tangent", 5, 2, 6, 1),
    Sketcher.Constraint("Coincident", 6, 2, 7, 1),
    Sketcher.Constraint("Coincident", 7, 2, 0, 1),
    Sketcher.Constraint("Vertical", 0),
    Sketcher.Constraint("Horizontal", 2),
    Sketcher.Constraint("Vertical", 3),
    Sketcher.Constraint("Horizontal", 4),
    Sketcher.Constraint("Vertical", 6),
    Sketcher.Constraint("Horizontal", 7),
    Sketcher.Constraint("Coincident", 5, 3, 1, 3),
    Sketcher.Constraint("Equal", 4, 0),
    Sketcher.Constraint("Radius", 1, Q("16 mm")),
    Sketcher.Constraint("Radius", 5, Q("10 mm")),
    Sketcher.Constraint("DistanceX", 2, 1, 2, 2, Q("7 mm")),
    Sketcher.Constraint("DistanceX", -1, 1, 1, 3, Q("43 mm")),
    Sketcher.Constraint("DistanceY", 1, 3, -1, 1, Q("43 mm")),
])
pad16 = doc.addObject("PartDesign::Pad", "Pad015")
body16.addObject(pad16)
pad16.Profile = sketch16
pad16.Length = 10
pad16.Reversed = True
body17 = doc.addObject("PartDesign::Body", "Body016")

# Sketch on XZ plane
sketch17 = doc.addObject("Sketcher::SketchObject", "Sketch016")
body17.addObject(sketch17)
sketch17.AttachmentSupport = (doc.getObject("XZ_Plane016"), [""])
sketch17.MapMode = "FlatFace"
sketch17.addGeometry([
    Part.LineSegment(Vector(37, -50, 0), Vector(37, -43, 0)),  # 0
    Part.ArcOfCircle(Part.Circle(Vector(43, -43, 0), Vector(0, 0, 1), 6), math.radians(90), math.radians(180)),  # 1
    Part.LineSegment(Vector(43, -37, 0), Vector(50, -37, 0)),  # 2
    Part.LineSegment(Vector(50, -37, 0), Vector(50, -43, 0)),  # 3
    Part.LineSegment(Vector(50, -43, 0), Vector(43, -43, 0)),  # 4
    Part.LineSegment(Vector(43, -43, 0), Vector(43, -50, 0)),  # 5
    Part.LineSegment(Vector(43, -50, 0), Vector(37, -50, 0)),  # 6
], False)
sketch17.addConstraint([
    Sketcher.Constraint("Tangent", 0, 2, 1, 2),
    Sketcher.Constraint("Tangent", 1, 1, 2, 1),
    Sketcher.Constraint("Coincident", 2, 2, 3, 1),
    Sketcher.Constraint("Coincident", 3, 2, 4, 1),
    Sketcher.Constraint("Coincident", 4, 2, 5, 1),
    Sketcher.Constraint("Coincident", 5, 2, 6, 1),
    Sketcher.Constraint("Coincident", 6, 2, 0, 1),
    Sketcher.Constraint("Vertical", 0),
    Sketcher.Constraint("Horizontal", 2),
    Sketcher.Constraint("Vertical", 3),
    Sketcher.Constraint("Horizontal", 4),
    Sketcher.Constraint("Vertical", 5),
    Sketcher.Constraint("Horizontal", 6),
    Sketcher.Constraint("Coincident", 4, 2, 1, 3),
    Sketcher.Constraint("Equal", 4, 0),
    Sketcher.Constraint("Radius", 1, Q("6 mm")),
    Sketcher.Constraint("DistanceX", 2, 1, 2, 2, Q("7 mm")),
    Sketcher.Constraint("DistanceX", -1, 1, 1, 3, Q("43 mm")),
    Sketcher.Constraint("DistanceY", 1, 3, -1, 1, Q("43 mm")),
])
pad17 = doc.addObject("PartDesign::Pad", "Pad016")
body17.addObject(pad17)
pad17.Profile = sketch17
pad17.Length = 10
pad17.Reversed = True

doc.recompute()
